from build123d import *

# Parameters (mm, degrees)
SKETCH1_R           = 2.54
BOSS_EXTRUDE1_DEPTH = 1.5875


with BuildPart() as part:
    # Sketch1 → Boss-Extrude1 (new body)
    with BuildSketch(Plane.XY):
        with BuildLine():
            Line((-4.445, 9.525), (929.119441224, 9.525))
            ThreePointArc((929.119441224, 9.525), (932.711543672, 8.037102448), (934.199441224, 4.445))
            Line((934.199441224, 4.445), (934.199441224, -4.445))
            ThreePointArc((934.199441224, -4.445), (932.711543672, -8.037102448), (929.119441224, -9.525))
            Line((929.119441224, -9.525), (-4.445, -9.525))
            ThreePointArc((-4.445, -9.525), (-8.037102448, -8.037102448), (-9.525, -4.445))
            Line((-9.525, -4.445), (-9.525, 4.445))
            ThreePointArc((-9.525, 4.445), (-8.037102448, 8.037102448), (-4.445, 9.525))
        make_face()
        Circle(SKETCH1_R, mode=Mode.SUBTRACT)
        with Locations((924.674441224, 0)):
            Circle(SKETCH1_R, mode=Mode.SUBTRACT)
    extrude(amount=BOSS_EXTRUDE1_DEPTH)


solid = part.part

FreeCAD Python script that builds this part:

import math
import FreeCAD as App
import Part
import Sketcher

V = App.Vector
Q = App.Units.Quantity

doc = App.newDocument("Part")
body = doc.addObject("PartDesign::Body", "Body")

# Sketch on XY plane
sketch1 = body.newObject("Sketcher::SketchObject", "Sketch")
sketch1.AttachmentSupport = (doc.getObject("XY_Plane"), [""])
sketch1.MapMode = "FlatFace"
sketch1.addGeometry([
    Part.LineSegment(V(929.1, 9.5, 0), V(-4.4, 9.5, 0)),  # 0
    Part.ArcOfCircle(Part.Circle(V(-4.4, 4.4, 0), V(0, 0, 1), 5.1), math.radians(90), math.radians(180)),  # 1
    Part.LineSegment(V(-9.5, 4.4, 0), V(-9.5, -4.4, 0)),  # 2
    Part.ArcOfCircle(Part.Circle(V(-4.4, -4.4, 0), V(0, 0, 1), 5.1), math.radians(-180), math.radians(-90)),  # 3
    Part.LineSegment(V(-4.4, -9.5, 0), V(929.1, -9.5, 0)),  # 4
    Part.ArcOfCircle(Part.Circle(V(929.1, -4.4, 0), V(0, 0, 1), 5.1), math.radians(-90), math.radians(0)),  # 5
    Part.LineSegment(V(934.2, -4.4, 0), V(934.2, 4.4, 0)),  # 6
    Part.ArcOfCircle(Part.Circle(V(929.1, 4.4, 0), V(0, 0, 1), 5.1), math.radians(0), math.radians(90)),  # 7
    Part.Circle(V(924.7, 0, 0), V(0, 0, 1), 2.5),  # 8
    Part.Circle(V(0, 0, 0), V(0, 0, 1), 2.5),  # 9
], False)
sketch1.addConstraint([
    Sketcher.Constraint("Tangent", 0, 2, 1, 1),
    Sketcher.Constraint("Tangent", 1, 2, 2, 1),
    Sketcher.Constraint("Tangent", 2, 2, 3, 1),
    Sketcher.Constraint("Tangent", 3, 2, 4, 1),
    Sketcher.Constraint("Tangent", 4, 2, 5, 1),
    Sketcher.Constraint("Tangent", 5, 2, 6, 1),
    Sketcher.Constraint("Tangent", 6, 2, 7, 1),
    Sketcher.Constraint("Tangent", 7, 2, 0, 1),
    Sketcher.Constraint("Horizontal", 0),
    Sketcher.Constraint("Vertical", 2),
    Sketcher.Constraint("Horizontal", 4),
    Sketcher.Constraint("Vertical", 6),
    Sketcher.Constraint("Coincident", 9, 3, -1, 1),
    Sketcher.Constraint("Equal", 1, 3),
    Sketcher.Constraint("Equal", 3, 5),
    Sketcher.Constraint("Equal", 5, 7),
    Sketcher.Constraint("Equal", 8, 9),
    Sketcher.Constraint("PointOnObject", 8, 3, -1),
    Sketcher.Constraint("Diameter", 8, Q("0.2 in")),
    Sketcher.Constraint("Radius", 1, Q("0.2 in")),
    Sketcher.Constraint("DistanceY", 2, 2, 2, 1, Q("0.35 in")),
    Sketcher.Constraint("DistanceX", 1, 3, -1, 1, Q("0.175 in")),
    Sketcher.Constraint("DistanceY", -1, 1, 1, 3, Q("0.175 in")),
    Sketcher.Constraint("DistanceX", 8, 3, 5, 3, Q("0.175 in")),
    Sketcher.Constraint("DistanceX", 0, 2, 0, 1, 933.564441),
])
pad1 = body.newObject("PartDesign::Pad", "Pad")
pad1.Profile = sketch1
pad1.Length = Q("0.0625 in")

doc.recompute()
